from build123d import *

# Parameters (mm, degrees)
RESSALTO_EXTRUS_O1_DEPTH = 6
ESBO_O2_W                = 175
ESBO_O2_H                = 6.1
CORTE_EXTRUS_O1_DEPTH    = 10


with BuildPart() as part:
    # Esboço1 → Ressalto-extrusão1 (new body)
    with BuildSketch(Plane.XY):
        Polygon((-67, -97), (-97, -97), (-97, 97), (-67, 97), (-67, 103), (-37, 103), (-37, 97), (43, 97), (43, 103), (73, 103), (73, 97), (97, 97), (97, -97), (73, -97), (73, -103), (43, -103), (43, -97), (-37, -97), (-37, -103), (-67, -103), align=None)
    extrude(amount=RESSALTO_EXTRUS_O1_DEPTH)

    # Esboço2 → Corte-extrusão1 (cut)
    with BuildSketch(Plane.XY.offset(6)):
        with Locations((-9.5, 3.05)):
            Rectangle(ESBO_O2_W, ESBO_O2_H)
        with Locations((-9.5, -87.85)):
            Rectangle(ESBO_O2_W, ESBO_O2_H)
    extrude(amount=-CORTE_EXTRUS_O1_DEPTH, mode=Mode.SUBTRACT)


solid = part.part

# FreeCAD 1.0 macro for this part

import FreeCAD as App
import Part
import Sketcher

V = App.Vector
Q = App.Units.Quantity

doc = App.newDocument("Part")
params = doc.addObject("Spreadsheet::Sheet", "Params")
for row, (alias, value) in enumerate([
    ("sketch1_width", "30 mm"),
    ("sketch1_width2", "80 mm"),
    ("sketch1_width3", "24 mm"),
    ("sketch1_height", "6 mm"),
    ("sketch1_height2", "194 mm"),
    ("pad1_length", "6 mm"),
    ("sketch2_width", "175 mm"),
    ("sketch2_height", "6.1 mm"),
    ("pocket1_length", "10 mm"),
], start=1):
    params.set(f"A{row}", alias)
    params.set(f"B{row}", "=" + value)
    params.setAlias(f"B{row}", alias)

body = doc.addObject("PartDesign::Body", "Body")

# Sketch on XY plane
sketch1 = doc.addObject("Sketcher::SketchObject", "Sketch")
body.addObject(sketch1)
sketch1.AttachmentSupport = (doc.XY_Plane, [""])
sketch1.MapMode = "FlatFace"
sketch1.addGeometry(Part.LineSegment(V(-97, -97, 0), V(-67, -97, 0)), False)
sketch1.addGeometry(Part.LineSegment(V(-67, -97, 0), V(-67, -103, 0)), False)
sketch1.addGeometry(Part.LineSegment(V(-67, -103, 0), V(-37, -103, 0)), False)
sketch1.addGeometry(Part.LineSegment(V(-37, -103, 0), V(-37, -97, 0)), False)
sketch1.addGeometry(Part.LineSegment(V(-37, -97, 0), V(43, -97, 0)), False)
sketch1.addGeometry(Part.LineSegment(V(43, -97, 0), V(43, -103, 0)), False)
sketch1.addGeometry(Part.LineSegment(V(43, -103, 0), V(73, -103, 0)), False)
sketch1.addGeometry(Part.LineSegment(V(73, -103, 0), V(73, -97, 0)), False)
sketch1.addGeometry(Part.LineSegment(V(73, -97, 0), V(97, -97, 0)), False)
sketch1.addGeometry(Part.LineSegment(V(97, -97, 0), V(97, 97, 0)), False)
sketch1.addGeometry(Part.LineSegment(V(97, 97, 0), V(73, 97, 0)), False)
sketch1.addGeometry(Part.LineSegment(V(73, 97, 0), V(73, 103, 0)), False)
sketch1.addGeometry(Part.LineSegment(V(73, 103, 0), V(43, 103, 0)), False)
sketch1.addGeometry(Part.LineSegment(V(43, 103, 0), V(43, 97, 0)), False)
sketch1.addGeometry(Part.LineSegment(V(43, 97, 0), V(-37, 97, 0)), False)
sketch1.addGeometry(Part.LineSegment(V(-37, 97, 0), V(-37, 103, 0)), False)
sketch1.addGeometry(Part.LineSegment(V(-37, 103, 0), V(-67, 103, 0)), False)
sketch1.addGeometry(Part.LineSegment(V(-67, 103, 0), V(-67, 97, 0)), False)
sketch1.addGeometry(Part.LineSegment(V(-67, 97, 0), V(-97, 97, 0)), False)
sketch1.addGeometry(Part.LineSegment(V(-97, 97, 0), V(-97, -97, 0)), False)
sketch1.addConstraint(Sketcher.Constraint("Coincident", 0, 2, 1, 1))
sketch1.addConstraint(Sketcher.Constraint("Coincident", 1, 2, 2, 1))
sketch1.addConstraint(Sketcher.Constraint("Coincident", 2, 2, 3, 1))
sketch1.addConstraint(Sketcher.Constraint("Coincident", 3, 2, 4, 1))
sketch1.addConstraint(Sketcher.Constraint("Coincident", 4, 2, 5, 1))
sketch1.addConstraint(Sketcher.Constraint("Coincident", 5, 2, 6, 1))
sketch1.addConstraint(Sketcher.Constraint("Coincident", 6, 2, 7, 1))
sketch1.addConstraint(Sketcher.Constraint("Coincident", 7, 2, 8, 1))
sketch1.addConstraint(Sketcher.Constraint("Coincident", 8, 2, 9, 1))
sketch1.addConstraint(Sketcher.Constraint("Coincident", 9, 2, 10, 1))
sketch1.addConstraint(Sketcher.Constraint("Coincident", 10, 2, 11, 1))
sketch1.addConstraint(Sketcher.Constraint("Coincident", 11, 2, 12, 1))
sketch1.addConstraint(Sketcher.Constraint("Coincident", 12, 2, 13, 1))
sketch1.addConstraint(Sketcher.Constraint("Coincident", 13, 2, 14, 1))
sketch1.addConstraint(Sketcher.Constraint("Coincident", 14, 2, 15, 1))
sketch1.addConstraint(Sketcher.Constraint("Coincident", 15, 2, 16, 1))
sketch1.addConstraint(Sketcher.Constraint("Coincident", 16, 2, 17, 1))
sketch1.addConstraint(Sketcher.Constraint("Coincident", 17, 2, 18, 1))
sketch1.addConstraint(Sketcher.Constraint("Coincident", 18, 2, 19, 1))
sketch1.addConstraint(Sketcher.Constraint("Coincident", 19, 2, 0, 1))
sketch1.addConstraint(Sketcher.Constraint("Horizontal", 0))
sketch1.addConstraint(Sketcher.Constraint("Vertical", 1))
sketch1.addConstraint(Sketcher.Constraint("Horizontal", 2))
sketch1.addConstraint(Sketcher.Constraint("Vertical", 3))
sketch1.addConstraint(Sketcher.Constraint("Horizontal", 4))
sketch1.addConstraint(Sketcher.Constraint("Vertical", 5))
sketch1.addConstraint(Sketcher.Constraint("Horizontal", 6))
sketch1.addConstraint(Sketcher.Constraint("Vertical", 7))
sketch1.addConstraint(Sketcher.Constraint("Horizontal", 8))
sketch1.addConstraint(Sketcher.Constraint("Vertical", 9))
sketch1.addConstraint(Sketcher.Constraint("Horizontal", 10))
sketch1.addConstraint(Sketcher.Constraint("Vertical", 11))
sketch1.addConstraint(Sketcher.Constraint("Horizontal", 12))
sketch1.addConstraint(Sketcher.Constraint("Vertical", 13))
sketch1.addConstraint(Sketcher.Constraint("Horizontal", 14))
sketch1.addConstraint(Sketcher.Constraint("Vertical", 15))
sketch1.addConstraint(Sketcher.Constraint("Horizontal", 16))
sketch1.addConstraint(Sketcher.Constraint("Vertical", 17))
sketch1.addConstraint(Sketcher.Constraint("Horizontal", 18))
sketch1.addConstraint(Sketcher.Constraint("Vertical", 19))
sketch1.addConstraint(Sketcher.Constraint("Symmetric", 8, 2, 18, 2, -1, 1))
sketch1.addConstraint(Sketcher.Constraint("Symmetric", 7, 2, 10, 2, -1))
sketch1.addConstraint(Sketcher.Constraint("Symmetric", 5, 2, 12, 2, -1))
sketch1.addConstraint(Sketcher.Constraint("Symmetric", 3, 2, 14, 2, -1))
sketch1.addConstraint(Sketcher.Constraint("Symmetric", 1, 2, 16, 2, -1))
sketch1.addConstraint(Sketcher.Constraint("Horizontal", 0, 2, 3, 2))
sketch1.addConstraint(Sketcher.Constraint("Horizontal", 2, 2, 5, 2))
sketch1.addConstraint(Sketcher.Constraint("Horizontal", 4, 2, 7, 2))
sketch1.addConstraint(Sketcher.Constraint("Equal", 0, 2))
sketch1.addConstraint(Sketcher.Constraint("Equal", 2, 6))
sketch1.addConstraint(Sketcher.Constraint("DistanceX", 0, 1, 0, 2, Q("30 mm")))
sketch1.addConstraint(Sketcher.Constraint("DistanceX", 4, 1, 4, 2, Q("80 mm")))
sketch1.addConstraint(Sketcher.Constraint("DistanceX", 8, 1, 8, 2, Q("24 mm")))
sketch1.addConstraint(Sketcher.Constraint("DistanceY", 1, 2, 1, 1, Q("6 mm")))
sketch1.addConstraint(Sketcher.Constraint("DistanceY", 9, 1, 9, 2, Q("194 mm")))
sketch1.setExpression("Constraints[50]", "Params.sketch1_width")
sketch1.setExpression("Constraints[51]", "Params.sketch1_width2")
sketch1.setExpression("Constraints[52]", "Params.sketch1_width3")
sketch1.setExpression("Constraints[53]", "Params.sketch1_height")
sketch1.setExpression("Constraints[54]", "Params.sketch1_height2")
pad1 = doc.addObject("PartDesign::Pad", "Pad")
body.addObject(pad1)
pad1.Profile = sketch1
pad1.setExpression("Length", "Params.pad1_length")

# Sketch on XY plane
sketch2 = doc.addObject("Sketcher::SketchObject", "Sketch001")
body.addObject(sketch2)
sketch2.AttachmentSupport = (doc.XY_Plane, [""])
sketch2.MapMode = "FlatFace"
sketch2.AttachmentOffset = App.Placement(V(0, 0, 6), App.Rotation())
sketch2.addGeometry(Part.LineSegment(V(-97, 6, 0), V(-97, 0, 0)), False)
sketch2.addGeometry(Part.LineSegment(V(-97, 0, 0), V(78, 0, 0)), False)
sketch2.addGeometry(Part.LineSegment(V(78, 0, 0), V(78, 6, 0)), False)
sketch2.addGeometry(Part.LineSegment(V(78, 6, 0), V(-97, 6, 0)), False)
sketch2.addGeometry(Part.LineSegment(V(-97, -85, 0), V(-97, -91, 0)), False)
sketch2.addGeometry(Part.LineSegment(V(-97, -91, 0), V(78, -91, 0)), False)
sketch2.addGeometry(Part.LineSegment(V(78, -91, 0), V(78, -85, 0)), False)
sketch2.addGeometry(Part.LineSegment(V(78, -85, 0), V(-97, -85, 0)), False)
sketch2.addConstraint(Sketcher.Constraint("Coincident", 0, 2, 1, 1))
sketch2.addConstraint(Sketcher.Constraint("Coincident", 1, 2, 2, 1))
sketch2.addConstraint(Sketcher.Constraint("Coincident", 2, 2, 3, 1))
sketch2.addConstraint(Sketcher.Constraint("Coincident", 3, 2, 0, 1))
sketch2.addConstraint(Sketcher.Constraint("Coincident", 4, 2, 5, 1))
sketch2.addConstraint(Sketcher.Constraint("Coincident", 5, 2, 6, 1))
sketch2.addConstraint(Sketcher.Constraint("Coincident", 6, 2, 7, 1))
sketch2.addConstraint(Sketcher.Constraint("Coincident", 7, 2, 4, 1))
sketch2.addConstraint(Sketcher.Constraint("Vertical", 0))
sketch2.addConstraint(Sketcher.Constraint("Horizontal", 1))
sketch2.addConstraint(Sketcher.Constraint("Vertical", 2))
sketch2.addConstraint(Sketcher.Constraint("Horizontal", 3))
sketch2.addConstraint(Sketcher.Constraint("Vertical", 4))
sketch2.addConstraint(Sketcher.Constraint("Horizontal", 5))
sketch2.addConstraint(Sketcher.Constraint("Vertical", 6))
sketch2.addConstraint(Sketcher.Constraint("Horizontal", 7))
sketch2.addConstraint(Sketcher.Constraint("PointOnObject", 0, 2, -1))
sketch2.addConstraint(Sketcher.Constraint("Vertical", 3, 2, 4, 2))
sketch2.addConstraint(Sketcher.Constraint("Vertical", 2, 2, 5, 2))
sketch2.addConstraint(Sketcher.Constraint("Equal", 2, 4))
sketch2.addConstraint(Sketcher.Constraint("DistanceX", 1, 1, 1, 2, Q("175 mm")))
sketch2.addConstraint(Sketcher.Constraint("DistanceY", 0, 2, 0, 1, Q("6.1 mm")))
sketch2.addConstraint(Sketcher.Constraint("DistanceX", 0, 2, -1, 1, Q("97 mm")))
sketch2.addConstraint(Sketcher.Constraint("DistanceY", 4, 2, 3, 2, Q("97 mm")))
sketch2.setExpression("Constraints[20]", "Params.sketch2_width")
sketch2.setExpression("Constraints[21]", "Params.sketch2_height")
pocket1 = doc.addObject("PartDesign::Pocket", "Pocket")
body.addObject(pocket1)
pocket1.Profile = sketch2
pocket1.setExpression("Length", "Params.pocket1_length")

doc.recompute()
